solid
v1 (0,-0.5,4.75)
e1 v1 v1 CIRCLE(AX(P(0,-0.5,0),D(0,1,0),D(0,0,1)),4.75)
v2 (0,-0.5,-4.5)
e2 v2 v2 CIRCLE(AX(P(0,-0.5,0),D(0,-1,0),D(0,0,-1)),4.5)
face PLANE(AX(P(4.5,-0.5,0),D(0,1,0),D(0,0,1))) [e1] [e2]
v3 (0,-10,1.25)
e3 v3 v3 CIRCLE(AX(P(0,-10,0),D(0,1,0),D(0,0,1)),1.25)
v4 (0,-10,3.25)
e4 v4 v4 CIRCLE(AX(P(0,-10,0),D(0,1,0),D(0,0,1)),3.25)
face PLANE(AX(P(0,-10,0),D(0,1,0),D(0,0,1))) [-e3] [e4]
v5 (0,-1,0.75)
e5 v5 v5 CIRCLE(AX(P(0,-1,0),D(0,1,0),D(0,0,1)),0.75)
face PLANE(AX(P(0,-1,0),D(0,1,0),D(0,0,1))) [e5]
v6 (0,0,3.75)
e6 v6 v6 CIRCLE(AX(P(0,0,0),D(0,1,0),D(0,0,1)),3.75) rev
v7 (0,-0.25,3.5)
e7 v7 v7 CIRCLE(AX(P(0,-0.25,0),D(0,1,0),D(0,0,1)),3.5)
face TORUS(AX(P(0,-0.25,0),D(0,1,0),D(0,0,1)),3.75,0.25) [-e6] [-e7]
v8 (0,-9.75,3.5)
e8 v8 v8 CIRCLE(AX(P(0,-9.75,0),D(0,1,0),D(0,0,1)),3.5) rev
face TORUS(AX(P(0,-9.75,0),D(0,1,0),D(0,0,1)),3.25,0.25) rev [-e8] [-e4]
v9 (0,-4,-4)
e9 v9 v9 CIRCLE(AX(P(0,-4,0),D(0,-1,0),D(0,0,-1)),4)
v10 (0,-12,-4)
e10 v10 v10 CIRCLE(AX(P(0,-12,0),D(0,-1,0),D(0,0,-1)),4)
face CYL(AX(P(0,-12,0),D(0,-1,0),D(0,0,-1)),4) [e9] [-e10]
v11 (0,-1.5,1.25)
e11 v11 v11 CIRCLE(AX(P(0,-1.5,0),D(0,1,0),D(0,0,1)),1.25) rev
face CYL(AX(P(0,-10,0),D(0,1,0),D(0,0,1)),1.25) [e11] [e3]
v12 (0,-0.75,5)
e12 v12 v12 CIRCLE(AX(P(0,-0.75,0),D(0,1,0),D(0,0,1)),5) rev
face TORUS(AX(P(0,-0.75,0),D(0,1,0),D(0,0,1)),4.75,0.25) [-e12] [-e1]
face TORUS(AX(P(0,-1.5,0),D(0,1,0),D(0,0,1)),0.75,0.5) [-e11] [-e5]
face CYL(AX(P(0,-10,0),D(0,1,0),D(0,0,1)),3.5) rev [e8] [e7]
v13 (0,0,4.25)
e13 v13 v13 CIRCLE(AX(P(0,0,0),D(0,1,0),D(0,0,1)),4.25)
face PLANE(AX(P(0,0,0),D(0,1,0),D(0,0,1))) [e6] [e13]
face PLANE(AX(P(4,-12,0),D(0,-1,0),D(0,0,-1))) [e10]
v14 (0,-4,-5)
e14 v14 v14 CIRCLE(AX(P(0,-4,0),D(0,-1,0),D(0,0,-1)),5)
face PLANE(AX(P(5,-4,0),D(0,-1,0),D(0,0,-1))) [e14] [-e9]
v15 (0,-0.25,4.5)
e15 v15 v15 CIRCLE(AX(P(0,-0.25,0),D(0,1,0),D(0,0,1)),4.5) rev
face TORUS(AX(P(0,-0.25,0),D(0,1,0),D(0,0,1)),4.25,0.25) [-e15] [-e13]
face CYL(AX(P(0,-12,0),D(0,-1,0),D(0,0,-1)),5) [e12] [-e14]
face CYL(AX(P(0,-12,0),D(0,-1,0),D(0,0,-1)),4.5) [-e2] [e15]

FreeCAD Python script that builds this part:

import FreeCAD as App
import Part
import Sketcher

V = App.Vector
Q = App.Units.Quantity


def edges_at(feature, points):
    """Names of the edges that pass closest to the given points."""
    edges = feature.Shape.Edges
    near = lambda p: min(range(len(edges)), key=lambda i: edges[i].distToShape(Part.Vertex(*p))[0])
    return sorted({f"Edge{near(p) + 1}" for p in points})

doc = App.newDocument("Part")
body = doc.addObject("PartDesign::Body", "Body")

# Sketch on XY plane
sketch1 = body.newObject("Sketcher::SketchObject", "Sketch")
sketch1.AttachmentSupport = (doc.getObject("XY_Plane"), [""])
sketch1.MapMode = "FlatFace"
sketch1.addGeometry(Part.LineSegment(V(4.5, 0, 0), V(0, 0, 0)), False)
sketch1.addGeometry(Part.LineSegment(V(0, 0, 0), V(0, -12, 0)), False)
sketch1.addGeometry(Part.LineSegment(V(0, -12, 0), V(4, -12, 0)), False)
sketch1.addGeometry(Part.LineSegment(V(4, -12, 0), V(4, -4, 0)), False)
sketch1.addGeometry(Part.LineSegment(V(4, -4, 0), V(5, -4, 0)), False)
sketch1.addGeometry(Part.LineSegment(V(5, -4, 0), V(5, -0.5, 0)), False)
sketch1.addGeometry(Part.LineSegment(V(5, -0.5, 0), V(4.5, -0.5, 0)), False)
sketch1.addGeometry(Part.LineSegment(V(4.5, -0.5, 0), V(4.5, 0, 0)), False)
sketch1.addConstraint(Sketcher.Constraint("Coincident", 0, 2, 1, 1))
sketch1.addConstraint(Sketcher.Constraint("Coincident", 1, 2, 2, 1))
sketch1.addConstraint(Sketcher.Constraint("Coincident", 2, 2, 3, 1))
sketch1.addConstraint(Sketcher.Constraint("Coincident", 3, 2, 4, 1))
sketch1.addConstraint(Sketcher.Constraint("Coincident", 4, 2, 5, 1))
sketch1.addConstraint(Sketcher.Constraint("Coincident", 5, 2, 6, 1))
sketch1.addConstraint(Sketcher.Constraint("Coincident", 6, 2, 7, 1))
sketch1.addConstraint(Sketcher.Constraint("Coincident", 7, 2, 0, 1))
sketch1.addConstraint(Sketcher.Constraint("Horizontal", 0))
sketch1.addConstraint(Sketcher.Constraint("Vertical", 1))
sketch1.addConstraint(Sketcher.Constraint("Horizontal", 2))
sketch1.addConstraint(Sketcher.Constraint("Vertical", 3))
sketch1.addConstraint(Sketcher.Constraint("Horizontal", 4))
sketch1.addConstraint(Sketcher.Constraint("Vertical", 5))
sketch1.addConstraint(Sketcher.Constraint("Horizontal", 6))
sketch1.addConstraint(Sketcher.Constraint("Vertical", 7))
sketch1.addConstraint(Sketcher.Constraint("Coincident", 0, 2, -1, 1))
sketch1.addConstraint(Sketcher.Constraint("Equal", 6, 7))
sketch1.addConstraint(Sketcher.Constraint("DistanceX", 2, 1, 2, 2, Q("4 mm")))
sketch1.addConstraint(Sketcher.Constraint("DistanceX", 4, 1, 4, 2, Q("1 mm")))
sketch1.addConstraint(Sketcher.Constraint("DistanceY", 1, 2, 1, 1, Q("12 mm")))
sketch1.addConstraint(Sketcher.Constraint("DistanceY", 3, 1, 3, 2, Q("8 mm")))
sketch1.addConstraint(Sketcher.Constraint("DistanceX", 0, 2, 0, 1, Q("4.5 mm")))
revolution = body.newObject("PartDesign::Revolution", "Revolution")
revolution.Profile = sketch1
revolution.ReferenceAxis = (sketch1, ["V_Axis"])
revolution.Angle = 360

# Sketch on XZ plane
sketch2 = body.newObject("Sketcher::SketchObject", "Sketch001")
sketch2.AttachmentSupport = (doc.getObject("XZ_Plane"), [""])
sketch2.MapMode = "FlatFace"
sketch2.addGeometry(Part.Circle(V(0, 0, 0), V(0, 0, 1), 3.5), False)
sketch2.addGeometry(Part.Circle(V(0, 0, 0), V(0, 0, 1), 1.2), False)
sketch2.addConstraint(Sketcher.Constraint("Coincident", 0, 3, -1, 1))
sketch2.addConstraint(Sketcher.Constraint("Coincident", 1, 3, -1, 1))
sketch2.addConstraint(Sketcher.Constraint("Diameter", 0, Q("7 mm")))
sketch2.addConstraint(Sketcher.Constraint("Diameter", 1, Q("2.5 mm")))
pocket1 = body.newObject("PartDesign::Pocket", "Pocket")
pocket1.Profile = sketch2
pocket1.Length = 10
pocket1.Reversed = True

# Sketch on XZ plane
sketch3 = body.newObject("Sketcher::SketchObject", "Sketch002")
sketch3.AttachmentSupport = (doc.getObject("XZ_Plane"), [""])
sketch3.MapMode = "FlatFace"
sketch3.addGeometry(Part.Circle(V(0, 0, 0), V(0, 0, 1), 1.2), False)
sketch3.addConstraint(Sketcher.Constraint("Coincident", 0, 3, -1, 1))
sketch3.addConstraint(Sketcher.Constraint("Diameter", 0, Q("2.5 mm")))
pocket2 = body.newObject("PartDesign::Pocket", "Pocket001")
pocket2.Profile = sketch3
pocket2.Length = 1
pocket2.Reversed = True
doc.recompute()

fillet = body.newObject("PartDesign::Fillet", "Fillet")
fillet.Base = (pocket2, edges_at(pocket2, [(0, -1, -1.25)]))
fillet.Radius = 0.5
doc.recompute()

fillet2 = body.newObject("PartDesign::Fillet", "Fillet001")
fillet2.Base = (fillet, edges_at(fillet, [
    (0, -10, -3.5),
    (0, 0, -3.5),
    (0, -0.5, 5),
    (0, 0, 4.5),
]))
fillet2.Radius = 0.25

doc.recompute()
